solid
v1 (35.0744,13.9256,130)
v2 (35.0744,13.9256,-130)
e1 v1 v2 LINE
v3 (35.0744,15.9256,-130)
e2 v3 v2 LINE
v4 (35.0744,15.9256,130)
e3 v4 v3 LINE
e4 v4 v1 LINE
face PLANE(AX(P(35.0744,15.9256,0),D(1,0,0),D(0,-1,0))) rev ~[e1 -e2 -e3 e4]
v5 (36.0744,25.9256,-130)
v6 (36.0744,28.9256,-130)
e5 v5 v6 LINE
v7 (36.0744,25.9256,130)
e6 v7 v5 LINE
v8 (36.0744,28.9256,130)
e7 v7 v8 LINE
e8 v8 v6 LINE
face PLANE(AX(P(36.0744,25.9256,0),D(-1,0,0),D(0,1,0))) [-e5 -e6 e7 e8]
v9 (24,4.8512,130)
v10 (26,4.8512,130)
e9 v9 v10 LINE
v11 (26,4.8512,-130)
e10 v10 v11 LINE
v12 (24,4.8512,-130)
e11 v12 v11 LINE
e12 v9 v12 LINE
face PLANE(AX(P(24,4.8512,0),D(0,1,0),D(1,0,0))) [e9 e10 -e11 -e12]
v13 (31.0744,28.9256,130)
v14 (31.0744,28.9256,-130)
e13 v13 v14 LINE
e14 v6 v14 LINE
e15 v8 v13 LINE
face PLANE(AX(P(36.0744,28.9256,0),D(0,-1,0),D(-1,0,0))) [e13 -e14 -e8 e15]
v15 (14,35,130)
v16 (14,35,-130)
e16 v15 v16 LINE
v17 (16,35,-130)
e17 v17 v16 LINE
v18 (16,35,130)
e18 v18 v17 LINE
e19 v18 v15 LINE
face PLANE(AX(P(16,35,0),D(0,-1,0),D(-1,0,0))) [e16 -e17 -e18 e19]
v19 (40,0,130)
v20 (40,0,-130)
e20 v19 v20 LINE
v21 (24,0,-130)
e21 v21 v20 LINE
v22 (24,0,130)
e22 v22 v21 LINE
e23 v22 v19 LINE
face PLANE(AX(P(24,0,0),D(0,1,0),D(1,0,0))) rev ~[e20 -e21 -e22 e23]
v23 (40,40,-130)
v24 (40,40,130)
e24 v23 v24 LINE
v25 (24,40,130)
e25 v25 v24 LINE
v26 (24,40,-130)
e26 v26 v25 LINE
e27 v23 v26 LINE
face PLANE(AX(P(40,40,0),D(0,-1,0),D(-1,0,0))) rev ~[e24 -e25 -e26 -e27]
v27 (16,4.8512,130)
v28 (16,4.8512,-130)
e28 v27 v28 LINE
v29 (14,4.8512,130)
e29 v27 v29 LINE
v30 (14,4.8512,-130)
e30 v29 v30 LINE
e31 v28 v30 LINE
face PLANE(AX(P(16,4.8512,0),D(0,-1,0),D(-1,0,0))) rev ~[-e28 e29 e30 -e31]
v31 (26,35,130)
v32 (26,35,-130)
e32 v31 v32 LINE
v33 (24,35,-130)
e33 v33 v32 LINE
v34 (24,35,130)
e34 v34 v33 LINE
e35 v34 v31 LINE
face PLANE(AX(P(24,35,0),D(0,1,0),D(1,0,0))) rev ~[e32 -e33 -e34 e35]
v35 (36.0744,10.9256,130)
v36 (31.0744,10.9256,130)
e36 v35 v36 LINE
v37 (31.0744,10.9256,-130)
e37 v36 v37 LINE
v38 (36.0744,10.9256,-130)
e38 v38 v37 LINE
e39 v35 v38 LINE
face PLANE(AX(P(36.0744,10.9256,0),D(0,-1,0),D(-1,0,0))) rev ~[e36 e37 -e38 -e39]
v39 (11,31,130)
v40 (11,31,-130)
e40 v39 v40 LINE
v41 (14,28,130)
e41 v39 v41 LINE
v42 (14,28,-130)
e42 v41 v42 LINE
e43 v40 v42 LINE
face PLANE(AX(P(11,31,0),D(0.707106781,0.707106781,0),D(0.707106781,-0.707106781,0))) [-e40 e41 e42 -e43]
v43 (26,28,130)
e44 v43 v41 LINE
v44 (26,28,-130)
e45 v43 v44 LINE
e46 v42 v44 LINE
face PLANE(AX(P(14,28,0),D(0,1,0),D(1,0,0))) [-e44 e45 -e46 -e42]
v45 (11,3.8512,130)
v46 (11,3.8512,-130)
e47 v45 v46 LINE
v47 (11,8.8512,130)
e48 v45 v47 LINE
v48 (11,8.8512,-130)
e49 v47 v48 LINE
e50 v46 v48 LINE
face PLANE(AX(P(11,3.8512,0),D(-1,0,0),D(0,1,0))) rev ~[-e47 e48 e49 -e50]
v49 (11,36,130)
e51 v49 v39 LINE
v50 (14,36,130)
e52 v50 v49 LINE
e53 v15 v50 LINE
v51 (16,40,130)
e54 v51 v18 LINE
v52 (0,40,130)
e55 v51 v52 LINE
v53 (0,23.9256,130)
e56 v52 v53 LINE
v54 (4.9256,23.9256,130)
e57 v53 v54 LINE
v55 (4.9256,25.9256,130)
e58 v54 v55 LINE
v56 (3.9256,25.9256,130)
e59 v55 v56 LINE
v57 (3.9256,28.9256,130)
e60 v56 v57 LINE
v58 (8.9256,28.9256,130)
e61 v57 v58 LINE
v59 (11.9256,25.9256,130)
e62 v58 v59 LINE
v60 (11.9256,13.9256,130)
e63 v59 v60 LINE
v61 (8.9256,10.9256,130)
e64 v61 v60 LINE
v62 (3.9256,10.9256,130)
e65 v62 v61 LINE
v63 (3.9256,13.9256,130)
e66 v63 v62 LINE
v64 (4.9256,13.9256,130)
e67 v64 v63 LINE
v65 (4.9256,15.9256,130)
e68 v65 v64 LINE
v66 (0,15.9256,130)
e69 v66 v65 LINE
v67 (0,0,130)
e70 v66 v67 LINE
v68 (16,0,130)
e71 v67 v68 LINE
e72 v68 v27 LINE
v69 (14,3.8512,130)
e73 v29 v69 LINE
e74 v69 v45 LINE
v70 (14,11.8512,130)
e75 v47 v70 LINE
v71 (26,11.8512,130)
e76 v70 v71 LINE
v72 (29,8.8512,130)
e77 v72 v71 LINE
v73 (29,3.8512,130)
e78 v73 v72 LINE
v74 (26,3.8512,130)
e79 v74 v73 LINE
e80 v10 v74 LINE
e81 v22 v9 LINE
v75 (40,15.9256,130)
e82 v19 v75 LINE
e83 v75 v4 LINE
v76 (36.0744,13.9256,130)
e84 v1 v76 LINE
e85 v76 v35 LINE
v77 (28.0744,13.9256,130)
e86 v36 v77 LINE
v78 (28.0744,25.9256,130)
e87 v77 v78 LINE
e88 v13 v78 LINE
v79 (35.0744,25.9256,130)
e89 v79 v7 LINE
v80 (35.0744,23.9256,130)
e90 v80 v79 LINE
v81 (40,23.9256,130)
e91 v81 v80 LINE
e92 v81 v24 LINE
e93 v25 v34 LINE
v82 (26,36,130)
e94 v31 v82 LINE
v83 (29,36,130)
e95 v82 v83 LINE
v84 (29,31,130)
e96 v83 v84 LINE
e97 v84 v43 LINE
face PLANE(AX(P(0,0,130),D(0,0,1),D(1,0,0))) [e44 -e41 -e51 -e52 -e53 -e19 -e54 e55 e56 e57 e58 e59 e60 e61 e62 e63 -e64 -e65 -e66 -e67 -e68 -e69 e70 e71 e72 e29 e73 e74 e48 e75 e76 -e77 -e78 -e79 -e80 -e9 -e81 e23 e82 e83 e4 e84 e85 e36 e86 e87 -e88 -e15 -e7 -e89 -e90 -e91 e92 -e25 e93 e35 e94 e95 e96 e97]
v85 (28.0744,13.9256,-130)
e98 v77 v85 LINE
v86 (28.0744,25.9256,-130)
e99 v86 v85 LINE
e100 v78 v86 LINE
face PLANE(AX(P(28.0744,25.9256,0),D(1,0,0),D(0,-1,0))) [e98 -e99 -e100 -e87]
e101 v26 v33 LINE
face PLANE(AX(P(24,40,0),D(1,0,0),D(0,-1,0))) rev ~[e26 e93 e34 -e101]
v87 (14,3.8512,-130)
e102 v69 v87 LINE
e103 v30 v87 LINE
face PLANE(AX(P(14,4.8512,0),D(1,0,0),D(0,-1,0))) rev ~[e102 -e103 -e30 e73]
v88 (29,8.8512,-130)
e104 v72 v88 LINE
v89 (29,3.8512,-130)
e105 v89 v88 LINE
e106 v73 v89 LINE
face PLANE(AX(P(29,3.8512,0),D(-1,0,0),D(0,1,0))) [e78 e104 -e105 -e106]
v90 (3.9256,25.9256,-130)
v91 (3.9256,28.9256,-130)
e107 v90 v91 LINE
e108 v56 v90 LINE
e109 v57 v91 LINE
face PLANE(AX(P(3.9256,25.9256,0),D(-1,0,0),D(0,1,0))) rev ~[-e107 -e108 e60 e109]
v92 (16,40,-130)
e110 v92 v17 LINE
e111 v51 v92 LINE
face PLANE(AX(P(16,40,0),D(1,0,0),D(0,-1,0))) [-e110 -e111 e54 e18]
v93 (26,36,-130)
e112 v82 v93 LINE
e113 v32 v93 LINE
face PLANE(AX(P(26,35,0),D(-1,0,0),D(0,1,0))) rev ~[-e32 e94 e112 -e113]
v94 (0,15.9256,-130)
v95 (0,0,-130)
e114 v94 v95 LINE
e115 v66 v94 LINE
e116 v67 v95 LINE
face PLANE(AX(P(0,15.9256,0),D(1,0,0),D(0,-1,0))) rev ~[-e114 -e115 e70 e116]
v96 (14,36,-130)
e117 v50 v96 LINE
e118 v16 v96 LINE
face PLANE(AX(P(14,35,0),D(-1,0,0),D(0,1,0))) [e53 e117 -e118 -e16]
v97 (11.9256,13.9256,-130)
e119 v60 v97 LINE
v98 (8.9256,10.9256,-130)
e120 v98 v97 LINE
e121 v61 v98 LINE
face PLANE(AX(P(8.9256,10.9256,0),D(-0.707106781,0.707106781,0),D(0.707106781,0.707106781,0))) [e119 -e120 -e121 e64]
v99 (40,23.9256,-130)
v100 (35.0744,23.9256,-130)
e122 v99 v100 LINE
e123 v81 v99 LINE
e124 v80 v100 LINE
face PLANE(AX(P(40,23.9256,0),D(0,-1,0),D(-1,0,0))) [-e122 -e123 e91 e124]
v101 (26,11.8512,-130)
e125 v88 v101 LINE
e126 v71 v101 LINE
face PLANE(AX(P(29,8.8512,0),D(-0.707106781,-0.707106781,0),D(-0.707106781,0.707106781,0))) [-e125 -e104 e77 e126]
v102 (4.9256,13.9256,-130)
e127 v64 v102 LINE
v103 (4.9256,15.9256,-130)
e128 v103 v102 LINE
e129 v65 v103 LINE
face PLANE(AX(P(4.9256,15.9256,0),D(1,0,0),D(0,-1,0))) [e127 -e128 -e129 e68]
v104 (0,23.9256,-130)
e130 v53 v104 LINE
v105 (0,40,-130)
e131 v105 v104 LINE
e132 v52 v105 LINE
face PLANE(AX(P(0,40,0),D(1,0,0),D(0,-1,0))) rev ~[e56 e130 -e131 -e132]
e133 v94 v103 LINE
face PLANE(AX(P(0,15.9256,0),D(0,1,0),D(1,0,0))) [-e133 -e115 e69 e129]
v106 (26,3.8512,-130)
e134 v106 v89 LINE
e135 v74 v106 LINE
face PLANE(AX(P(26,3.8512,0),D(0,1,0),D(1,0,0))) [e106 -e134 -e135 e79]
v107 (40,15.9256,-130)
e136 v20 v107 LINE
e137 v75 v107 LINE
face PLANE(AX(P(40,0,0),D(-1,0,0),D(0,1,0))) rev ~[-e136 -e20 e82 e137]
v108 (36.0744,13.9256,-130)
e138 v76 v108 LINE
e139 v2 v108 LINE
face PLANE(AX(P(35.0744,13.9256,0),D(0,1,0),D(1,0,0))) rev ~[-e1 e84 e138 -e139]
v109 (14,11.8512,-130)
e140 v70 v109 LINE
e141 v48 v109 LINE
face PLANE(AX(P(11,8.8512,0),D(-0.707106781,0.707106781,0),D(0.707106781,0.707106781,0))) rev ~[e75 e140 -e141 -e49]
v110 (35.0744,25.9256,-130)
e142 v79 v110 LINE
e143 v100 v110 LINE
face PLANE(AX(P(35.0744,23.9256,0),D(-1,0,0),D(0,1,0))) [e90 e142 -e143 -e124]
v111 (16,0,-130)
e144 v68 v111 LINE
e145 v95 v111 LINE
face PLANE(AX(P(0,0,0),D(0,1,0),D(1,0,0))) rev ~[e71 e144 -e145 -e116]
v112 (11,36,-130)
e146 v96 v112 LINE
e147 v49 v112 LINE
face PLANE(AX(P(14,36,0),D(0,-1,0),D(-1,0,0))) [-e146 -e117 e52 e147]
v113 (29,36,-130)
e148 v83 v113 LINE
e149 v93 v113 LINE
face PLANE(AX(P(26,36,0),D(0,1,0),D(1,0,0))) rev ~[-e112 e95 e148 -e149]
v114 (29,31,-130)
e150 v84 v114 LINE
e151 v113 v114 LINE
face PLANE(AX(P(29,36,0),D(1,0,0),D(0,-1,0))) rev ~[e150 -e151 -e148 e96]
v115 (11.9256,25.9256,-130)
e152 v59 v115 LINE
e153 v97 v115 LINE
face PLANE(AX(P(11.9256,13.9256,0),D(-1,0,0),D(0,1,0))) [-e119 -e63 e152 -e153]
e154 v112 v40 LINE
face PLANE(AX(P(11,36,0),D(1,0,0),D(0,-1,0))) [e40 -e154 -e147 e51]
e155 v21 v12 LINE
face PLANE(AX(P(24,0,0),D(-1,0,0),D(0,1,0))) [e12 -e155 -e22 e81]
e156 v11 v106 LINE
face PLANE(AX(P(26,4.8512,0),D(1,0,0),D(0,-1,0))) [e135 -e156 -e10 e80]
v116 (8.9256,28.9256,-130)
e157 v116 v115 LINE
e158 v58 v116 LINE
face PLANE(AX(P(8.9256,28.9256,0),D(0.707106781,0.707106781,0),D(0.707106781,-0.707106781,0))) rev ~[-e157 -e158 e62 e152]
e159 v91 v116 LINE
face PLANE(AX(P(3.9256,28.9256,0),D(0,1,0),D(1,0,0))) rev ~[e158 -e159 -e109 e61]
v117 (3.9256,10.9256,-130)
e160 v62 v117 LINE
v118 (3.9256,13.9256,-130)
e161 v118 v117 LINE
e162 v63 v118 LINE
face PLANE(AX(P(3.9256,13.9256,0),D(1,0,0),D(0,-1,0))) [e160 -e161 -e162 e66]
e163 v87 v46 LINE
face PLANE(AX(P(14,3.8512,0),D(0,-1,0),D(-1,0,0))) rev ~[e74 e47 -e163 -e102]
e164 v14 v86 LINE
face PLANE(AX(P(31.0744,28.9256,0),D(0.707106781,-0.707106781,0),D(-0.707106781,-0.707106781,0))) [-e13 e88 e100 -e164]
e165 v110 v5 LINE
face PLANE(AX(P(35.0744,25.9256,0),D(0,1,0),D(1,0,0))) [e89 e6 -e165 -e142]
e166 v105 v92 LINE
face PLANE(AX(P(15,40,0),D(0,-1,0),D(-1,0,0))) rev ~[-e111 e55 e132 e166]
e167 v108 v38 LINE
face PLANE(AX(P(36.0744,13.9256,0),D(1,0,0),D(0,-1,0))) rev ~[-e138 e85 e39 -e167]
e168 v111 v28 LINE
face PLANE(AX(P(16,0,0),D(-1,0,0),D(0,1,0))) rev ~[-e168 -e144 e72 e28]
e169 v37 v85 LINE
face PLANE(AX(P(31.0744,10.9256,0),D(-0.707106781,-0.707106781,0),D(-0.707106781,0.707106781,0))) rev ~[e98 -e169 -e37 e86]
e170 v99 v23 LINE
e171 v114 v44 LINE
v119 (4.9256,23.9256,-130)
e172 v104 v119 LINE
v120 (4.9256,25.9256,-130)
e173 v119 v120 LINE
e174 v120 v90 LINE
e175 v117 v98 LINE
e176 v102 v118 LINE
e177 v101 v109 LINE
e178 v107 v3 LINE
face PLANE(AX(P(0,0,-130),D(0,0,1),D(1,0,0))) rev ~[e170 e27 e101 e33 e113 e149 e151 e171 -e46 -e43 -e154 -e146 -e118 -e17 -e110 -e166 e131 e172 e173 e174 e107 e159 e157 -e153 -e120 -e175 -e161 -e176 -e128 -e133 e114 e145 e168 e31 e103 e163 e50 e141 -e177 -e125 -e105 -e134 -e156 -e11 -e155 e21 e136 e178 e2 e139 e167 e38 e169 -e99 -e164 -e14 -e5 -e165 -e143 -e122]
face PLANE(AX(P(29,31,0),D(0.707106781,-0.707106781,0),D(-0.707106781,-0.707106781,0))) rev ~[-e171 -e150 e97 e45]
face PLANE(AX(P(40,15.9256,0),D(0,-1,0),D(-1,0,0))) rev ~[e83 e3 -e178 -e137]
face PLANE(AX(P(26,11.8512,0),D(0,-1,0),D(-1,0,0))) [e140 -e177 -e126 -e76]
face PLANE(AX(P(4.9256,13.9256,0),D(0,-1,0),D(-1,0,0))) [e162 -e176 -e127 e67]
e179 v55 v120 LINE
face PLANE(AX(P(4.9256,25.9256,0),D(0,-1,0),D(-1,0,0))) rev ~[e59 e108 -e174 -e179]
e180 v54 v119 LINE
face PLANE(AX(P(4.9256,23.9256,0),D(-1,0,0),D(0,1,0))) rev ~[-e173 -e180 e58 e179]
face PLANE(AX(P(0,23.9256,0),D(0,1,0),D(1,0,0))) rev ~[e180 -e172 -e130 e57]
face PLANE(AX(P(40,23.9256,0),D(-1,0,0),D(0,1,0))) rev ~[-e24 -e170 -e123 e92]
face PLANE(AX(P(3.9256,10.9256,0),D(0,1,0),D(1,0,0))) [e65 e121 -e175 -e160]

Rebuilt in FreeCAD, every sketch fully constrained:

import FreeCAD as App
import Part
import Sketcher
from FreeCAD import Vector


def add_polygon(sketch, points):
    """Adds a closed chain of lines whose ends are joined by coincident constraints."""
    first, n = sketch.GeometryCount, len(points)
    for a, b in zip(points, points[1:] + points[:1]):
        sketch.addGeometry(Part.LineSegment(App.Vector(*a, 0), App.Vector(*b, 0)), False)
    for i in range(n):
        sketch.addConstraint(Sketcher.Constraint("Coincident", first + i, 2, first + (i + 1) % n, 1))

doc = App.newDocument("Part")
body = doc.addObject("PartDesign::Body", "Body")

# Sketch on XY plane
sketch1 = body.newObject("Sketcher::SketchObject", "Sketch")
sketch1.AttachmentSupport = (doc.getObject("XY_Plane"), [""])
sketch1.MapMode = "FlatFace"
add_polygon(sketch1, [(40, 23.9), (40, 40), (24, 40), (24, 35), (26, 35), (26, 36), (29, 36), (29, 31), (26, 28), (14, 28), (11, 31), (11, 36), (14, 36), (14, 35), (16, 35), (16, 40), (0, 40), (0, 23.9), (4.9, 23.9), (4.9, 25.9), (3.9, 25.9), (3.9, 28.9), (8.9, 28.9), (11.9, 25.9), (11.9, 13.9), (8.9, 10.9), (3.9, 10.9), (3.9, 13.9), (4.9, 13.9), (4.9, 15.9), (0, 15.9), (0, 0), (16, 0), (16, 4.9), (14, 4.9), (14, 3.9), (11, 3.9), (11, 8.9), (14, 11.9), (26, 11.9), (29, 8.9), (29, 3.9), (26, 3.9), (26, 4.9), (24, 4.9), (24, 0), (40, 0), (40, 15.9), (35.1, 15.9), (35.1, 13.9), (36.1, 13.9), (36.1, 10.9), (31.1, 10.9), (28.1, 13.9), (28.1, 25.9), (31.1, 28.9), (36.1, 28.9), (36.1, 25.9), (35.1, 25.9), (35.1, 23.9)])  # lines 0-59
sketch1.addConstraint([
    Sketcher.Constraint("Vertical", 0),
    Sketcher.Constraint("Horizontal", 1),
    Sketcher.Constraint("Vertical", 2),
    Sketcher.Constraint("Horizontal", 3),
    Sketcher.Constraint("Vertical", 4),
    Sketcher.Constraint("Horizontal", 5),
    Sketcher.Constraint("Vertical", 6),
    Sketcher.Constraint("Horizontal", 8),
    Sketcher.Constraint("Vertical", 10),
    Sketcher.Constraint("Horizontal", 11),
    Sketcher.Constraint("Vertical", 12),
    Sketcher.Constraint("Horizontal", 13),
    Sketcher.Constraint("Vertical", 14),
    Sketcher.Constraint("Horizontal", 15),
    Sketcher.Constraint("Vertical", 16),
    Sketcher.Constraint("Horizontal", 17),
    Sketcher.Constraint("Vertical", 18),
    Sketcher.Constraint("Horizontal", 19),
    Sketcher.Constraint("Vertical", 20),
    Sketcher.Constraint("Horizontal", 21),
    Sketcher.Constraint("Vertical", 23),
    Sketcher.Constraint("Horizontal", 25),
    Sketcher.Constraint("Vertical", 26),
    Sketcher.Constraint("Horizontal", 27),
    Sketcher.Constraint("Vertical", 28),
    Sketcher.Constraint("Horizontal", 29),
    Sketcher.Constraint("Vertical", 30),
    Sketcher.Constraint("Horizontal", 31),
    Sketcher.Constraint("Vertical", 32),
    Sketcher.Constraint("Horizontal", 33),
    Sketcher.Constraint("Vertical", 34),
    Sketcher.Constraint("Horizontal", 35),
    Sketcher.Constraint("Vertical", 36),
    Sketcher.Constraint("Horizontal", 38),
    Sketcher.Constraint("Vertical", 40),
    Sketcher.Constraint("Horizontal", 41),
    Sketcher.Constraint("Vertical", 42),
    Sketcher.Constraint("Horizontal", 43),
    Sketcher.Constraint("Vertical", 44),
    Sketcher.Constraint("Horizontal", 45),
    Sketcher.Constraint("Vertical", 46),
    Sketcher.Constraint("Horizontal", 47),
    Sketcher.Constraint("Vertical", 48),
    Sketcher.Constraint("Horizontal", 49),
    Sketcher.Constraint("Vertical", 50),
    Sketcher.Constraint("Horizontal", 51),
    Sketcher.Constraint("Vertical", 53),
    Sketcher.Constraint("Horizontal", 55),
    Sketcher.Constraint("Vertical", 56),
    Sketcher.Constraint("Horizontal", 57),
    Sketcher.Constraint("Vertical", 58),
    Sketcher.Constraint("Horizontal", 59),
    Sketcher.Constraint("Coincident", 30, 2, -1, 1),
    Sketcher.Constraint("PointOnObject", 15, 2, -2),
    Sketcher.Constraint("PointOnObject", 44, 2, -1),
    Sketcher.Constraint("Perpendicular", 7, 9),
    Sketcher.Constraint("Parallel", 9, 22),
    Sketcher.Constraint("Perpendicular", 22, 24),
    Sketcher.Constraint("Parallel", 24, 37),
    Sketcher.Constraint("Perpendicular", 37, 39),
    Sketcher.Constraint("Parallel", 39, 52),
    Sketcher.Constraint("Perpendicular", 52, 54),
    Sketcher.Constraint("Horizontal", 6, 2, 9, 2),
    Sketcher.Constraint("Horizontal", 5, 2, 10, 2),
    Sketcher.Constraint("Horizontal", 3, 2, 12, 2),
    Sketcher.Constraint("Horizontal", 1, 2, 14, 2),
    Sketcher.Constraint("Horizontal", 19, 2, 22, 2),
    Sketcher.Constraint("Horizontal", 23, 2, 26, 2),
    Sketcher.Constraint("Horizontal", 36, 2, 39, 2),
    Sketcher.Constraint("Horizontal", 35, 2, 40, 2),
    Sketcher.Constraint("Horizontal", 33, 2, 42, 2),
    Sketcher.Constraint("Horizontal", 29, 2, 46, 2),
    Sketcher.Constraint("Horizontal", 27, 2, 48, 2),
    Sketcher.Constraint("Horizontal", 25, 2, 50, 2),
    Sketcher.Constraint("Horizontal", 49, 2, 52, 2),
    Sketcher.Constraint("Horizontal", 22, 2, 53, 2),
    Sketcher.Constraint("Horizontal", 21, 2, 54, 2),
    Sketcher.Constraint("Horizontal", 53, 2, 56, 2),
    Sketcher.Constraint("Horizontal", 17, 2, 58, 2),
    Sketcher.Constraint("Vertical", 4, 2, 7, 2),
    Sketcher.Constraint("Vertical", 8, 2, 11, 2),
    Sketcher.Constraint("Vertical", 21, 2, 24, 2),
    Sketcher.Constraint("Vertical", 20, 2, 25, 2),
    Sketcher.Constraint("Vertical", 18, 2, 27, 2),
    Sketcher.Constraint("Vertical", 14, 2, 31, 2),
    Sketcher.Constraint("Vertical", 12, 2, 33, 2),
    Sketcher.Constraint("Vertical", 10, 2, 35, 2),
    Sketcher.Constraint("Vertical", 34, 2, 37, 2),
    Sketcher.Constraint("Vertical", 7, 2, 38, 2),
    Sketcher.Constraint("Vertical", 6, 2, 39, 2),
    Sketcher.Constraint("Vertical", 38, 2, 41, 2),
    Sketcher.Constraint("Vertical", 2, 2, 43, 2),
    Sketcher.Constraint("Vertical", 0, 2, 45, 2),
    Sketcher.Constraint("Vertical", 50, 2, 55, 2),
    Sketcher.Constraint("Vertical", 48, 2, 57, 2),
    Sketcher.Constraint("Equal", 3, 13),
    Sketcher.Constraint("Equal", 1, 15),
    Sketcher.Constraint("Equal", 29, 47),
    Sketcher.Constraint("Equal", 27, 49),
    Sketcher.Constraint("Equal", 25, 51),
    Sketcher.Constraint("Equal", 55, 2),
    Sketcher.Constraint("Equal", 57, 4),
    Sketcher.Constraint("Equal", 2, 6),
    Sketcher.Constraint("Equal", 43, 18),
    Sketcher.Constraint("Equal", 41, 20),
    Sketcher.Constraint("Equal", 38, 23),
    Sketcher.Constraint("Equal", 18, 28),
    Sketcher.Constraint("Equal", 12, 34),
    Sketcher.Constraint("Equal", 14, 36),
    Sketcher.Constraint("DistanceX", 3, 1, 3, 2, 2.0),
    Sketcher.Constraint("DistanceX", 5, 1, 5, 2, 3.0),
    Sketcher.Constraint("DistanceX", 19, 2, 19, 1, 1.0),
    Sketcher.Constraint("DistanceX", 21, 1, 21, 2, 5.0),
    Sketcher.Constraint("DistanceX", -1, 1, 0, 2, 40.0),
    Sketcher.Constraint("DistanceY", -1, 1, 0, 2, 40.0),
    Sketcher.Constraint("DistanceX", 1, 2, 1, 1, 16.0),
    Sketcher.Constraint("DistanceX", 17, 1, 17, 2, 4.9256),
    Sketcher.Constraint("DistanceY", 0, 1, 0, 2, 16.0744),
    Sketcher.Constraint("DistanceY", 32, 1, 32, 2, 4.8512),
])
pad1 = body.newObject("PartDesign::Pad", "Pad")
pad1.Profile = sketch1
pad1.Length = 260
pad1.Midplane = True

doc.recompute()
